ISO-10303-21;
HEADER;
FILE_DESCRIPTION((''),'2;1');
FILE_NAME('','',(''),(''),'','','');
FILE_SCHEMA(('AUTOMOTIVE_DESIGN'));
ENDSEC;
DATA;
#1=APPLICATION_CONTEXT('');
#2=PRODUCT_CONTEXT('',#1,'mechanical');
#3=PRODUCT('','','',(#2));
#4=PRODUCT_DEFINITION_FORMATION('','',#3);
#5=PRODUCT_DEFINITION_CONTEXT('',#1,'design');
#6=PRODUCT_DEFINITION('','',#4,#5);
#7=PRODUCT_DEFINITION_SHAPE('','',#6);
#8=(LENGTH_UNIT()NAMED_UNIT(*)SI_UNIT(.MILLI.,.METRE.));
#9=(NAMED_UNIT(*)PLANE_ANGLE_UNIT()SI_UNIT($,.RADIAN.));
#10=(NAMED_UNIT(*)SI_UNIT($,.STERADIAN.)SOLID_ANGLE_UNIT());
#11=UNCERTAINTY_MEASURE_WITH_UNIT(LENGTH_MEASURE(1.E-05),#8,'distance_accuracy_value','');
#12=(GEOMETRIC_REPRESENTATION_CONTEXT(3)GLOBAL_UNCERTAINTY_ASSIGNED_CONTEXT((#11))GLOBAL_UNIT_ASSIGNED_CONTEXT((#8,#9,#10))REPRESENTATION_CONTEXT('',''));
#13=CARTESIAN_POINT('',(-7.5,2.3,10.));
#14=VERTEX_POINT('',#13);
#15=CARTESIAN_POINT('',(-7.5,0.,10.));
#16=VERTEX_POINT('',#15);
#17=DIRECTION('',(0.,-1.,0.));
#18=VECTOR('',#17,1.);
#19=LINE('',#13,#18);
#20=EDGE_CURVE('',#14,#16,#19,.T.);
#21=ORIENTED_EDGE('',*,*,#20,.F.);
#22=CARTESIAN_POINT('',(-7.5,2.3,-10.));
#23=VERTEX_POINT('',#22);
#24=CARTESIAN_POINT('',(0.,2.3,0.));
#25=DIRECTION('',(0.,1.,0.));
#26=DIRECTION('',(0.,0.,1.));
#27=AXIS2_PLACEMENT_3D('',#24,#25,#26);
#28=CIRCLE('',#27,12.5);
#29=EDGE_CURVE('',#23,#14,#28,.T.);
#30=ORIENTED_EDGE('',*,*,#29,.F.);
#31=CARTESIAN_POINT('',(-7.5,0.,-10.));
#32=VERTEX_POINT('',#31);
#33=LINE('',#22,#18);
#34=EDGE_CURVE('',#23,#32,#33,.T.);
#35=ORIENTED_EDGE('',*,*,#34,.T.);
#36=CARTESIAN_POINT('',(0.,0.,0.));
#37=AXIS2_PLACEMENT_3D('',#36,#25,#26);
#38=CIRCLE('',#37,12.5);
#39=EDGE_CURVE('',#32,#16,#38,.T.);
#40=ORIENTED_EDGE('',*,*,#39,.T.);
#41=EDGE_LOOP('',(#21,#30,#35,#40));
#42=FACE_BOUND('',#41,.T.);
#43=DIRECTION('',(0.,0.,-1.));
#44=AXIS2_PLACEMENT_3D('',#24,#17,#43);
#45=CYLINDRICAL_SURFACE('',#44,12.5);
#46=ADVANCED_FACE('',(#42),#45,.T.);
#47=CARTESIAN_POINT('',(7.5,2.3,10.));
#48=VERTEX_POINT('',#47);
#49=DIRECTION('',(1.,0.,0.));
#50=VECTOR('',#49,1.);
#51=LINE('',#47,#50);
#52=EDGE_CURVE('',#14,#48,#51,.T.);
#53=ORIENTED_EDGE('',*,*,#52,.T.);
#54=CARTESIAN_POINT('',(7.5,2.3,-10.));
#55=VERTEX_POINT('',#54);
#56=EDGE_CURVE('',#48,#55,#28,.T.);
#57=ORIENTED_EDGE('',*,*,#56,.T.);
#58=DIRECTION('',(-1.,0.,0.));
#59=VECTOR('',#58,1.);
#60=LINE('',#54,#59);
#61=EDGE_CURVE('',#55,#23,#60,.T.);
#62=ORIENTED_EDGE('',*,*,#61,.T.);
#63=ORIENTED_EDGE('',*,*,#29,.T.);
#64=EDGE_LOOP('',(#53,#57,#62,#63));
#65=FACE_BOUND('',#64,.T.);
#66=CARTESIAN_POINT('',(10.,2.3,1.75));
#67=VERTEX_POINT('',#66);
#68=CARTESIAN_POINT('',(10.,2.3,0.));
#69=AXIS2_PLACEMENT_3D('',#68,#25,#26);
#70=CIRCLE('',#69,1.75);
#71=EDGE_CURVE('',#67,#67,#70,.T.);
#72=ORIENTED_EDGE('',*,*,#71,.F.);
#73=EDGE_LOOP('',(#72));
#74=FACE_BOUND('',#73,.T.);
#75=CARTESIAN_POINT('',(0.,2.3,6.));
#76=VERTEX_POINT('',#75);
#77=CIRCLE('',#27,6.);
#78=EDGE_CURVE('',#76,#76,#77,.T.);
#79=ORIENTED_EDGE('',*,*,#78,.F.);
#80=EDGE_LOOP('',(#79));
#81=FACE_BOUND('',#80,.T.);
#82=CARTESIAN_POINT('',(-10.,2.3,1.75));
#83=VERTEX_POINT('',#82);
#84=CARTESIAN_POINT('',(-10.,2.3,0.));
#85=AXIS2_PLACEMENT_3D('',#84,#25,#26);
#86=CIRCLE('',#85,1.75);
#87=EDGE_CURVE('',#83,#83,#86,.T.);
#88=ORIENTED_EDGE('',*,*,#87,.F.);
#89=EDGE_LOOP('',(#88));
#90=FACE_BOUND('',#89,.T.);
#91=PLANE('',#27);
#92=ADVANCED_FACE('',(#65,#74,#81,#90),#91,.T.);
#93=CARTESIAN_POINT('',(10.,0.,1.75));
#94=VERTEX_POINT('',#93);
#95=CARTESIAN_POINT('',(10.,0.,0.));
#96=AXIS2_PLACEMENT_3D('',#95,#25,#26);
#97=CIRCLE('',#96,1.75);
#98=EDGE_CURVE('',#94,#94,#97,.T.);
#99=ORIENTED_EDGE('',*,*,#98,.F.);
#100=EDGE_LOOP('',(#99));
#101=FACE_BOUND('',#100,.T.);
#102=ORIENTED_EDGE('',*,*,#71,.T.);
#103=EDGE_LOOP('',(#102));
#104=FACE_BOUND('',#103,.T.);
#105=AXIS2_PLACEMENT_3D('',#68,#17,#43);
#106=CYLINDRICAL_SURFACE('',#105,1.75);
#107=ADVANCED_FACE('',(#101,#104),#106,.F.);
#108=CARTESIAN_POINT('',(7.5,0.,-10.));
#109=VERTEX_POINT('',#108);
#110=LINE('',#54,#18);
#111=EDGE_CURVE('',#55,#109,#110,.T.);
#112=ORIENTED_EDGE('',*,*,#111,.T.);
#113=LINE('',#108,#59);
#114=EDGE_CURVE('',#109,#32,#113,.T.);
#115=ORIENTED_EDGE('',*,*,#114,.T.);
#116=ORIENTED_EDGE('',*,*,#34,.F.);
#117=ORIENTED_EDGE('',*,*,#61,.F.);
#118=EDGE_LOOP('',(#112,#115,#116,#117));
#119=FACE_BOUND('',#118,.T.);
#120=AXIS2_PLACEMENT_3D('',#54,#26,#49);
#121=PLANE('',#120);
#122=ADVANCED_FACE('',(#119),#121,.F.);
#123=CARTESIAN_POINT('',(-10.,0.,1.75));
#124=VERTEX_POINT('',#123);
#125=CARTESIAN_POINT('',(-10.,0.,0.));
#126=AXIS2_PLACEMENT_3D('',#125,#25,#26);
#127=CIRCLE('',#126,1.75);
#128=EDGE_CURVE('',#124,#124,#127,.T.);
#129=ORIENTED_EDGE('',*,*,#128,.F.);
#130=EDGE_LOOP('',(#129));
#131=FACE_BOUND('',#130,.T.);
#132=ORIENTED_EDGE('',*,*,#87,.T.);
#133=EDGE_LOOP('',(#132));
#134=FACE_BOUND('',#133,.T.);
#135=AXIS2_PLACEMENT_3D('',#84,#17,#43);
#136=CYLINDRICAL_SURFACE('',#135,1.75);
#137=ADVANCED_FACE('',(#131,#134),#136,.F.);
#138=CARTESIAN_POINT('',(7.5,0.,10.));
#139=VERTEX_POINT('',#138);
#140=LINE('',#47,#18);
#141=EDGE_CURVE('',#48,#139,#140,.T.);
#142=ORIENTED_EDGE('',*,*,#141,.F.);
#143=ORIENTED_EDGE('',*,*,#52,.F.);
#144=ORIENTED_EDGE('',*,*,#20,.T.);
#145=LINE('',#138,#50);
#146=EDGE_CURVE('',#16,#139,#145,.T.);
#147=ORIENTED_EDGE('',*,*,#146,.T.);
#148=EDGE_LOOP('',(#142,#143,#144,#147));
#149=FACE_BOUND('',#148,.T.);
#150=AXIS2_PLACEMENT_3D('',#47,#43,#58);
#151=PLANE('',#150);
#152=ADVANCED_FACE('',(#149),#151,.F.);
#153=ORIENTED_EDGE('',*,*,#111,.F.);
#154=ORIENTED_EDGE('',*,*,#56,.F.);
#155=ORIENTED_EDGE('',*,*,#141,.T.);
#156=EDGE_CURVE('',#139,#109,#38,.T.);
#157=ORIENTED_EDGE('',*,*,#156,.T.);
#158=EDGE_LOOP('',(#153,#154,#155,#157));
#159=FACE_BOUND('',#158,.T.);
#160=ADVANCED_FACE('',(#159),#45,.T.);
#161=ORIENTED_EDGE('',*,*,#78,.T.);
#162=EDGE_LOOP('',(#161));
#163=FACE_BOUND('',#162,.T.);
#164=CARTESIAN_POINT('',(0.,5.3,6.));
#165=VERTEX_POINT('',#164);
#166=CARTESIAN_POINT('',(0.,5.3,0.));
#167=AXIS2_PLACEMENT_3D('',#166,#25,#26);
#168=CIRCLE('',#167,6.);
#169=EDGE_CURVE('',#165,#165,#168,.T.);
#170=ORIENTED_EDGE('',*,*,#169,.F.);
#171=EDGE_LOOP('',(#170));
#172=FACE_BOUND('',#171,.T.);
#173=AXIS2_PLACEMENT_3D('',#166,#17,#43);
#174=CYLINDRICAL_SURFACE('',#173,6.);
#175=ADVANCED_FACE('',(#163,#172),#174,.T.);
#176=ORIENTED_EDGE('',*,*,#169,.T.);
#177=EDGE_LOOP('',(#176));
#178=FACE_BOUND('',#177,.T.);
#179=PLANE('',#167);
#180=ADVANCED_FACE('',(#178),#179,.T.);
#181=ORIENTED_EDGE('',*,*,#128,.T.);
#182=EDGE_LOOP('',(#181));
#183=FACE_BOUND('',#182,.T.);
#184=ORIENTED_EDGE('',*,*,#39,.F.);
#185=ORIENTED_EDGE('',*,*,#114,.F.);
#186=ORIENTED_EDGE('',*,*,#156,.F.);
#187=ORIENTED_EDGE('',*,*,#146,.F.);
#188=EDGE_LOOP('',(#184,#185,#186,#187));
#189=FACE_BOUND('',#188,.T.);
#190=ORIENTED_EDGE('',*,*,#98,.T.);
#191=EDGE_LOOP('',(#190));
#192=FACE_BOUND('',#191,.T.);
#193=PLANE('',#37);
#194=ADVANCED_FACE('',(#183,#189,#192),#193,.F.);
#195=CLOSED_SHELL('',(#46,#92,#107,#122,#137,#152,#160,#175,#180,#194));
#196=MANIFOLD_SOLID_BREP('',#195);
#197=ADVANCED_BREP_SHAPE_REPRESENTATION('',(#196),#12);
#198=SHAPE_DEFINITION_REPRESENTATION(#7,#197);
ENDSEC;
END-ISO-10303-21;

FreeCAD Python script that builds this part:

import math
import FreeCAD as App
import Part
import Sketcher

V = App.Vector
Q = App.Units.Quantity

doc = App.newDocument("Part")
body = doc.addObject("PartDesign::Body", "Body")

sketch1 = body.newObject("Sketcher::SketchObject", "Sketch")
sketch1.AttachmentSupport = (doc.getObject("XZ_Plane"), [""])
sketch1.MapMode = "FlatFace"
sketch1.addGeometry(Part.LineSegment(V(-7.5, 10, 0), V(7.5, 10, 0)), False)
sketch1.addGeometry(Part.ArcOfCircle(Part.Circle(V(0, 0, 0), V(0, 0, 1), 12.5), math.radians(-53), math.radians(53)), False)
sketch1.addGeometry(Part.LineSegment(V(7.5, -10, 0), V(-7.5, -10, 0)), False)
sketch1.addGeometry(Part.ArcOfCircle(Part.Circle(V(0, 0, 0), V(0, 0, 1), 12.5), math.radians(127), math.radians(233)), False)
sketch1.addGeometry(Part.Circle(V(10, 0, 0), V(0, 0, 1), 1.8), False)
sketch1.addGeometry(Part.Circle(V(-10, 0, 0), V(0, 0, 1), 1.8), False)
sketch1.addConstraint(Sketcher.Constraint("Coincident", 0, 2, 1, 2))
sketch1.addConstraint(Sketcher.Constraint("Coincident", 1, 1, 2, 1))
sketch1.addConstraint(Sketcher.Constraint("Coincident", 2, 2, 3, 2))
sketch1.addConstraint(Sketcher.Constraint("Coincident", 3, 1, 0, 1))
sketch1.addConstraint(Sketcher.Constraint("Horizontal", 0))
sketch1.addConstraint(Sketcher.Constraint("Horizontal", 2))
sketch1.addConstraint(Sketcher.Constraint("Coincident", 1, 3, -1, 1))
sketch1.addConstraint(Sketcher.Constraint("Coincident", 3, 3, -1, 1))
sketch1.addConstraint(Sketcher.Constraint("Equal", 1, 3))
sketch1.addConstraint(Sketcher.Constraint("Equal", 4, 5))
sketch1.addConstraint(Sketcher.Constraint("Symmetric", 4, 3, 5, 3, -1, 1))
sketch1.addConstraint(Sketcher.Constraint("PointOnObject", 4, 3, -1))
sketch1.addConstraint(Sketcher.Constraint("Vertical", 0, 2, 1, 1))
sketch1.addConstraint(Sketcher.Constraint("Diameter", 4, Q("3.5 mm")))
sketch1.addConstraint(Sketcher.Constraint("Radius", 1, Q("12.5 mm")))
sketch1.addConstraint(Sketcher.Constraint("DistanceX", 0, 1, 0, 2, Q("15 mm")))
sketch1.addConstraint(Sketcher.Constraint("DistanceX", -1, 1, 4, 3, Q("10 mm")))
pad1 = body.newObject("PartDesign::Pad", "Pad")
pad1.Profile = sketch1
pad1.Length = 2.3
pad1.Reversed = True

sketch2 = body.newObject("Sketcher::SketchObject", "Sketch001")
sketch2.AttachmentSupport = (doc.getObject("XZ_Plane"), [""])
sketch2.MapMode = "FlatFace"
sketch2.AttachmentOffset = App.Placement(V(0, 0, -2.3), App.Rotation())
sketch2.addGeometry(Part.Circle(V(0, 0, 0), V(0, 0, 1), 6), False)
sketch2.addConstraint(Sketcher.Constraint("Coincident", 0, 3, -1, 1))
sketch2.addConstraint(Sketcher.Constraint("Diameter", 0, Q("12 mm")))
pad2 = body.newObject("PartDesign::Pad", "Pad001")
pad2.Profile = sketch2
pad2.Length = 3
pad2.Reversed = True

doc.recompute()
